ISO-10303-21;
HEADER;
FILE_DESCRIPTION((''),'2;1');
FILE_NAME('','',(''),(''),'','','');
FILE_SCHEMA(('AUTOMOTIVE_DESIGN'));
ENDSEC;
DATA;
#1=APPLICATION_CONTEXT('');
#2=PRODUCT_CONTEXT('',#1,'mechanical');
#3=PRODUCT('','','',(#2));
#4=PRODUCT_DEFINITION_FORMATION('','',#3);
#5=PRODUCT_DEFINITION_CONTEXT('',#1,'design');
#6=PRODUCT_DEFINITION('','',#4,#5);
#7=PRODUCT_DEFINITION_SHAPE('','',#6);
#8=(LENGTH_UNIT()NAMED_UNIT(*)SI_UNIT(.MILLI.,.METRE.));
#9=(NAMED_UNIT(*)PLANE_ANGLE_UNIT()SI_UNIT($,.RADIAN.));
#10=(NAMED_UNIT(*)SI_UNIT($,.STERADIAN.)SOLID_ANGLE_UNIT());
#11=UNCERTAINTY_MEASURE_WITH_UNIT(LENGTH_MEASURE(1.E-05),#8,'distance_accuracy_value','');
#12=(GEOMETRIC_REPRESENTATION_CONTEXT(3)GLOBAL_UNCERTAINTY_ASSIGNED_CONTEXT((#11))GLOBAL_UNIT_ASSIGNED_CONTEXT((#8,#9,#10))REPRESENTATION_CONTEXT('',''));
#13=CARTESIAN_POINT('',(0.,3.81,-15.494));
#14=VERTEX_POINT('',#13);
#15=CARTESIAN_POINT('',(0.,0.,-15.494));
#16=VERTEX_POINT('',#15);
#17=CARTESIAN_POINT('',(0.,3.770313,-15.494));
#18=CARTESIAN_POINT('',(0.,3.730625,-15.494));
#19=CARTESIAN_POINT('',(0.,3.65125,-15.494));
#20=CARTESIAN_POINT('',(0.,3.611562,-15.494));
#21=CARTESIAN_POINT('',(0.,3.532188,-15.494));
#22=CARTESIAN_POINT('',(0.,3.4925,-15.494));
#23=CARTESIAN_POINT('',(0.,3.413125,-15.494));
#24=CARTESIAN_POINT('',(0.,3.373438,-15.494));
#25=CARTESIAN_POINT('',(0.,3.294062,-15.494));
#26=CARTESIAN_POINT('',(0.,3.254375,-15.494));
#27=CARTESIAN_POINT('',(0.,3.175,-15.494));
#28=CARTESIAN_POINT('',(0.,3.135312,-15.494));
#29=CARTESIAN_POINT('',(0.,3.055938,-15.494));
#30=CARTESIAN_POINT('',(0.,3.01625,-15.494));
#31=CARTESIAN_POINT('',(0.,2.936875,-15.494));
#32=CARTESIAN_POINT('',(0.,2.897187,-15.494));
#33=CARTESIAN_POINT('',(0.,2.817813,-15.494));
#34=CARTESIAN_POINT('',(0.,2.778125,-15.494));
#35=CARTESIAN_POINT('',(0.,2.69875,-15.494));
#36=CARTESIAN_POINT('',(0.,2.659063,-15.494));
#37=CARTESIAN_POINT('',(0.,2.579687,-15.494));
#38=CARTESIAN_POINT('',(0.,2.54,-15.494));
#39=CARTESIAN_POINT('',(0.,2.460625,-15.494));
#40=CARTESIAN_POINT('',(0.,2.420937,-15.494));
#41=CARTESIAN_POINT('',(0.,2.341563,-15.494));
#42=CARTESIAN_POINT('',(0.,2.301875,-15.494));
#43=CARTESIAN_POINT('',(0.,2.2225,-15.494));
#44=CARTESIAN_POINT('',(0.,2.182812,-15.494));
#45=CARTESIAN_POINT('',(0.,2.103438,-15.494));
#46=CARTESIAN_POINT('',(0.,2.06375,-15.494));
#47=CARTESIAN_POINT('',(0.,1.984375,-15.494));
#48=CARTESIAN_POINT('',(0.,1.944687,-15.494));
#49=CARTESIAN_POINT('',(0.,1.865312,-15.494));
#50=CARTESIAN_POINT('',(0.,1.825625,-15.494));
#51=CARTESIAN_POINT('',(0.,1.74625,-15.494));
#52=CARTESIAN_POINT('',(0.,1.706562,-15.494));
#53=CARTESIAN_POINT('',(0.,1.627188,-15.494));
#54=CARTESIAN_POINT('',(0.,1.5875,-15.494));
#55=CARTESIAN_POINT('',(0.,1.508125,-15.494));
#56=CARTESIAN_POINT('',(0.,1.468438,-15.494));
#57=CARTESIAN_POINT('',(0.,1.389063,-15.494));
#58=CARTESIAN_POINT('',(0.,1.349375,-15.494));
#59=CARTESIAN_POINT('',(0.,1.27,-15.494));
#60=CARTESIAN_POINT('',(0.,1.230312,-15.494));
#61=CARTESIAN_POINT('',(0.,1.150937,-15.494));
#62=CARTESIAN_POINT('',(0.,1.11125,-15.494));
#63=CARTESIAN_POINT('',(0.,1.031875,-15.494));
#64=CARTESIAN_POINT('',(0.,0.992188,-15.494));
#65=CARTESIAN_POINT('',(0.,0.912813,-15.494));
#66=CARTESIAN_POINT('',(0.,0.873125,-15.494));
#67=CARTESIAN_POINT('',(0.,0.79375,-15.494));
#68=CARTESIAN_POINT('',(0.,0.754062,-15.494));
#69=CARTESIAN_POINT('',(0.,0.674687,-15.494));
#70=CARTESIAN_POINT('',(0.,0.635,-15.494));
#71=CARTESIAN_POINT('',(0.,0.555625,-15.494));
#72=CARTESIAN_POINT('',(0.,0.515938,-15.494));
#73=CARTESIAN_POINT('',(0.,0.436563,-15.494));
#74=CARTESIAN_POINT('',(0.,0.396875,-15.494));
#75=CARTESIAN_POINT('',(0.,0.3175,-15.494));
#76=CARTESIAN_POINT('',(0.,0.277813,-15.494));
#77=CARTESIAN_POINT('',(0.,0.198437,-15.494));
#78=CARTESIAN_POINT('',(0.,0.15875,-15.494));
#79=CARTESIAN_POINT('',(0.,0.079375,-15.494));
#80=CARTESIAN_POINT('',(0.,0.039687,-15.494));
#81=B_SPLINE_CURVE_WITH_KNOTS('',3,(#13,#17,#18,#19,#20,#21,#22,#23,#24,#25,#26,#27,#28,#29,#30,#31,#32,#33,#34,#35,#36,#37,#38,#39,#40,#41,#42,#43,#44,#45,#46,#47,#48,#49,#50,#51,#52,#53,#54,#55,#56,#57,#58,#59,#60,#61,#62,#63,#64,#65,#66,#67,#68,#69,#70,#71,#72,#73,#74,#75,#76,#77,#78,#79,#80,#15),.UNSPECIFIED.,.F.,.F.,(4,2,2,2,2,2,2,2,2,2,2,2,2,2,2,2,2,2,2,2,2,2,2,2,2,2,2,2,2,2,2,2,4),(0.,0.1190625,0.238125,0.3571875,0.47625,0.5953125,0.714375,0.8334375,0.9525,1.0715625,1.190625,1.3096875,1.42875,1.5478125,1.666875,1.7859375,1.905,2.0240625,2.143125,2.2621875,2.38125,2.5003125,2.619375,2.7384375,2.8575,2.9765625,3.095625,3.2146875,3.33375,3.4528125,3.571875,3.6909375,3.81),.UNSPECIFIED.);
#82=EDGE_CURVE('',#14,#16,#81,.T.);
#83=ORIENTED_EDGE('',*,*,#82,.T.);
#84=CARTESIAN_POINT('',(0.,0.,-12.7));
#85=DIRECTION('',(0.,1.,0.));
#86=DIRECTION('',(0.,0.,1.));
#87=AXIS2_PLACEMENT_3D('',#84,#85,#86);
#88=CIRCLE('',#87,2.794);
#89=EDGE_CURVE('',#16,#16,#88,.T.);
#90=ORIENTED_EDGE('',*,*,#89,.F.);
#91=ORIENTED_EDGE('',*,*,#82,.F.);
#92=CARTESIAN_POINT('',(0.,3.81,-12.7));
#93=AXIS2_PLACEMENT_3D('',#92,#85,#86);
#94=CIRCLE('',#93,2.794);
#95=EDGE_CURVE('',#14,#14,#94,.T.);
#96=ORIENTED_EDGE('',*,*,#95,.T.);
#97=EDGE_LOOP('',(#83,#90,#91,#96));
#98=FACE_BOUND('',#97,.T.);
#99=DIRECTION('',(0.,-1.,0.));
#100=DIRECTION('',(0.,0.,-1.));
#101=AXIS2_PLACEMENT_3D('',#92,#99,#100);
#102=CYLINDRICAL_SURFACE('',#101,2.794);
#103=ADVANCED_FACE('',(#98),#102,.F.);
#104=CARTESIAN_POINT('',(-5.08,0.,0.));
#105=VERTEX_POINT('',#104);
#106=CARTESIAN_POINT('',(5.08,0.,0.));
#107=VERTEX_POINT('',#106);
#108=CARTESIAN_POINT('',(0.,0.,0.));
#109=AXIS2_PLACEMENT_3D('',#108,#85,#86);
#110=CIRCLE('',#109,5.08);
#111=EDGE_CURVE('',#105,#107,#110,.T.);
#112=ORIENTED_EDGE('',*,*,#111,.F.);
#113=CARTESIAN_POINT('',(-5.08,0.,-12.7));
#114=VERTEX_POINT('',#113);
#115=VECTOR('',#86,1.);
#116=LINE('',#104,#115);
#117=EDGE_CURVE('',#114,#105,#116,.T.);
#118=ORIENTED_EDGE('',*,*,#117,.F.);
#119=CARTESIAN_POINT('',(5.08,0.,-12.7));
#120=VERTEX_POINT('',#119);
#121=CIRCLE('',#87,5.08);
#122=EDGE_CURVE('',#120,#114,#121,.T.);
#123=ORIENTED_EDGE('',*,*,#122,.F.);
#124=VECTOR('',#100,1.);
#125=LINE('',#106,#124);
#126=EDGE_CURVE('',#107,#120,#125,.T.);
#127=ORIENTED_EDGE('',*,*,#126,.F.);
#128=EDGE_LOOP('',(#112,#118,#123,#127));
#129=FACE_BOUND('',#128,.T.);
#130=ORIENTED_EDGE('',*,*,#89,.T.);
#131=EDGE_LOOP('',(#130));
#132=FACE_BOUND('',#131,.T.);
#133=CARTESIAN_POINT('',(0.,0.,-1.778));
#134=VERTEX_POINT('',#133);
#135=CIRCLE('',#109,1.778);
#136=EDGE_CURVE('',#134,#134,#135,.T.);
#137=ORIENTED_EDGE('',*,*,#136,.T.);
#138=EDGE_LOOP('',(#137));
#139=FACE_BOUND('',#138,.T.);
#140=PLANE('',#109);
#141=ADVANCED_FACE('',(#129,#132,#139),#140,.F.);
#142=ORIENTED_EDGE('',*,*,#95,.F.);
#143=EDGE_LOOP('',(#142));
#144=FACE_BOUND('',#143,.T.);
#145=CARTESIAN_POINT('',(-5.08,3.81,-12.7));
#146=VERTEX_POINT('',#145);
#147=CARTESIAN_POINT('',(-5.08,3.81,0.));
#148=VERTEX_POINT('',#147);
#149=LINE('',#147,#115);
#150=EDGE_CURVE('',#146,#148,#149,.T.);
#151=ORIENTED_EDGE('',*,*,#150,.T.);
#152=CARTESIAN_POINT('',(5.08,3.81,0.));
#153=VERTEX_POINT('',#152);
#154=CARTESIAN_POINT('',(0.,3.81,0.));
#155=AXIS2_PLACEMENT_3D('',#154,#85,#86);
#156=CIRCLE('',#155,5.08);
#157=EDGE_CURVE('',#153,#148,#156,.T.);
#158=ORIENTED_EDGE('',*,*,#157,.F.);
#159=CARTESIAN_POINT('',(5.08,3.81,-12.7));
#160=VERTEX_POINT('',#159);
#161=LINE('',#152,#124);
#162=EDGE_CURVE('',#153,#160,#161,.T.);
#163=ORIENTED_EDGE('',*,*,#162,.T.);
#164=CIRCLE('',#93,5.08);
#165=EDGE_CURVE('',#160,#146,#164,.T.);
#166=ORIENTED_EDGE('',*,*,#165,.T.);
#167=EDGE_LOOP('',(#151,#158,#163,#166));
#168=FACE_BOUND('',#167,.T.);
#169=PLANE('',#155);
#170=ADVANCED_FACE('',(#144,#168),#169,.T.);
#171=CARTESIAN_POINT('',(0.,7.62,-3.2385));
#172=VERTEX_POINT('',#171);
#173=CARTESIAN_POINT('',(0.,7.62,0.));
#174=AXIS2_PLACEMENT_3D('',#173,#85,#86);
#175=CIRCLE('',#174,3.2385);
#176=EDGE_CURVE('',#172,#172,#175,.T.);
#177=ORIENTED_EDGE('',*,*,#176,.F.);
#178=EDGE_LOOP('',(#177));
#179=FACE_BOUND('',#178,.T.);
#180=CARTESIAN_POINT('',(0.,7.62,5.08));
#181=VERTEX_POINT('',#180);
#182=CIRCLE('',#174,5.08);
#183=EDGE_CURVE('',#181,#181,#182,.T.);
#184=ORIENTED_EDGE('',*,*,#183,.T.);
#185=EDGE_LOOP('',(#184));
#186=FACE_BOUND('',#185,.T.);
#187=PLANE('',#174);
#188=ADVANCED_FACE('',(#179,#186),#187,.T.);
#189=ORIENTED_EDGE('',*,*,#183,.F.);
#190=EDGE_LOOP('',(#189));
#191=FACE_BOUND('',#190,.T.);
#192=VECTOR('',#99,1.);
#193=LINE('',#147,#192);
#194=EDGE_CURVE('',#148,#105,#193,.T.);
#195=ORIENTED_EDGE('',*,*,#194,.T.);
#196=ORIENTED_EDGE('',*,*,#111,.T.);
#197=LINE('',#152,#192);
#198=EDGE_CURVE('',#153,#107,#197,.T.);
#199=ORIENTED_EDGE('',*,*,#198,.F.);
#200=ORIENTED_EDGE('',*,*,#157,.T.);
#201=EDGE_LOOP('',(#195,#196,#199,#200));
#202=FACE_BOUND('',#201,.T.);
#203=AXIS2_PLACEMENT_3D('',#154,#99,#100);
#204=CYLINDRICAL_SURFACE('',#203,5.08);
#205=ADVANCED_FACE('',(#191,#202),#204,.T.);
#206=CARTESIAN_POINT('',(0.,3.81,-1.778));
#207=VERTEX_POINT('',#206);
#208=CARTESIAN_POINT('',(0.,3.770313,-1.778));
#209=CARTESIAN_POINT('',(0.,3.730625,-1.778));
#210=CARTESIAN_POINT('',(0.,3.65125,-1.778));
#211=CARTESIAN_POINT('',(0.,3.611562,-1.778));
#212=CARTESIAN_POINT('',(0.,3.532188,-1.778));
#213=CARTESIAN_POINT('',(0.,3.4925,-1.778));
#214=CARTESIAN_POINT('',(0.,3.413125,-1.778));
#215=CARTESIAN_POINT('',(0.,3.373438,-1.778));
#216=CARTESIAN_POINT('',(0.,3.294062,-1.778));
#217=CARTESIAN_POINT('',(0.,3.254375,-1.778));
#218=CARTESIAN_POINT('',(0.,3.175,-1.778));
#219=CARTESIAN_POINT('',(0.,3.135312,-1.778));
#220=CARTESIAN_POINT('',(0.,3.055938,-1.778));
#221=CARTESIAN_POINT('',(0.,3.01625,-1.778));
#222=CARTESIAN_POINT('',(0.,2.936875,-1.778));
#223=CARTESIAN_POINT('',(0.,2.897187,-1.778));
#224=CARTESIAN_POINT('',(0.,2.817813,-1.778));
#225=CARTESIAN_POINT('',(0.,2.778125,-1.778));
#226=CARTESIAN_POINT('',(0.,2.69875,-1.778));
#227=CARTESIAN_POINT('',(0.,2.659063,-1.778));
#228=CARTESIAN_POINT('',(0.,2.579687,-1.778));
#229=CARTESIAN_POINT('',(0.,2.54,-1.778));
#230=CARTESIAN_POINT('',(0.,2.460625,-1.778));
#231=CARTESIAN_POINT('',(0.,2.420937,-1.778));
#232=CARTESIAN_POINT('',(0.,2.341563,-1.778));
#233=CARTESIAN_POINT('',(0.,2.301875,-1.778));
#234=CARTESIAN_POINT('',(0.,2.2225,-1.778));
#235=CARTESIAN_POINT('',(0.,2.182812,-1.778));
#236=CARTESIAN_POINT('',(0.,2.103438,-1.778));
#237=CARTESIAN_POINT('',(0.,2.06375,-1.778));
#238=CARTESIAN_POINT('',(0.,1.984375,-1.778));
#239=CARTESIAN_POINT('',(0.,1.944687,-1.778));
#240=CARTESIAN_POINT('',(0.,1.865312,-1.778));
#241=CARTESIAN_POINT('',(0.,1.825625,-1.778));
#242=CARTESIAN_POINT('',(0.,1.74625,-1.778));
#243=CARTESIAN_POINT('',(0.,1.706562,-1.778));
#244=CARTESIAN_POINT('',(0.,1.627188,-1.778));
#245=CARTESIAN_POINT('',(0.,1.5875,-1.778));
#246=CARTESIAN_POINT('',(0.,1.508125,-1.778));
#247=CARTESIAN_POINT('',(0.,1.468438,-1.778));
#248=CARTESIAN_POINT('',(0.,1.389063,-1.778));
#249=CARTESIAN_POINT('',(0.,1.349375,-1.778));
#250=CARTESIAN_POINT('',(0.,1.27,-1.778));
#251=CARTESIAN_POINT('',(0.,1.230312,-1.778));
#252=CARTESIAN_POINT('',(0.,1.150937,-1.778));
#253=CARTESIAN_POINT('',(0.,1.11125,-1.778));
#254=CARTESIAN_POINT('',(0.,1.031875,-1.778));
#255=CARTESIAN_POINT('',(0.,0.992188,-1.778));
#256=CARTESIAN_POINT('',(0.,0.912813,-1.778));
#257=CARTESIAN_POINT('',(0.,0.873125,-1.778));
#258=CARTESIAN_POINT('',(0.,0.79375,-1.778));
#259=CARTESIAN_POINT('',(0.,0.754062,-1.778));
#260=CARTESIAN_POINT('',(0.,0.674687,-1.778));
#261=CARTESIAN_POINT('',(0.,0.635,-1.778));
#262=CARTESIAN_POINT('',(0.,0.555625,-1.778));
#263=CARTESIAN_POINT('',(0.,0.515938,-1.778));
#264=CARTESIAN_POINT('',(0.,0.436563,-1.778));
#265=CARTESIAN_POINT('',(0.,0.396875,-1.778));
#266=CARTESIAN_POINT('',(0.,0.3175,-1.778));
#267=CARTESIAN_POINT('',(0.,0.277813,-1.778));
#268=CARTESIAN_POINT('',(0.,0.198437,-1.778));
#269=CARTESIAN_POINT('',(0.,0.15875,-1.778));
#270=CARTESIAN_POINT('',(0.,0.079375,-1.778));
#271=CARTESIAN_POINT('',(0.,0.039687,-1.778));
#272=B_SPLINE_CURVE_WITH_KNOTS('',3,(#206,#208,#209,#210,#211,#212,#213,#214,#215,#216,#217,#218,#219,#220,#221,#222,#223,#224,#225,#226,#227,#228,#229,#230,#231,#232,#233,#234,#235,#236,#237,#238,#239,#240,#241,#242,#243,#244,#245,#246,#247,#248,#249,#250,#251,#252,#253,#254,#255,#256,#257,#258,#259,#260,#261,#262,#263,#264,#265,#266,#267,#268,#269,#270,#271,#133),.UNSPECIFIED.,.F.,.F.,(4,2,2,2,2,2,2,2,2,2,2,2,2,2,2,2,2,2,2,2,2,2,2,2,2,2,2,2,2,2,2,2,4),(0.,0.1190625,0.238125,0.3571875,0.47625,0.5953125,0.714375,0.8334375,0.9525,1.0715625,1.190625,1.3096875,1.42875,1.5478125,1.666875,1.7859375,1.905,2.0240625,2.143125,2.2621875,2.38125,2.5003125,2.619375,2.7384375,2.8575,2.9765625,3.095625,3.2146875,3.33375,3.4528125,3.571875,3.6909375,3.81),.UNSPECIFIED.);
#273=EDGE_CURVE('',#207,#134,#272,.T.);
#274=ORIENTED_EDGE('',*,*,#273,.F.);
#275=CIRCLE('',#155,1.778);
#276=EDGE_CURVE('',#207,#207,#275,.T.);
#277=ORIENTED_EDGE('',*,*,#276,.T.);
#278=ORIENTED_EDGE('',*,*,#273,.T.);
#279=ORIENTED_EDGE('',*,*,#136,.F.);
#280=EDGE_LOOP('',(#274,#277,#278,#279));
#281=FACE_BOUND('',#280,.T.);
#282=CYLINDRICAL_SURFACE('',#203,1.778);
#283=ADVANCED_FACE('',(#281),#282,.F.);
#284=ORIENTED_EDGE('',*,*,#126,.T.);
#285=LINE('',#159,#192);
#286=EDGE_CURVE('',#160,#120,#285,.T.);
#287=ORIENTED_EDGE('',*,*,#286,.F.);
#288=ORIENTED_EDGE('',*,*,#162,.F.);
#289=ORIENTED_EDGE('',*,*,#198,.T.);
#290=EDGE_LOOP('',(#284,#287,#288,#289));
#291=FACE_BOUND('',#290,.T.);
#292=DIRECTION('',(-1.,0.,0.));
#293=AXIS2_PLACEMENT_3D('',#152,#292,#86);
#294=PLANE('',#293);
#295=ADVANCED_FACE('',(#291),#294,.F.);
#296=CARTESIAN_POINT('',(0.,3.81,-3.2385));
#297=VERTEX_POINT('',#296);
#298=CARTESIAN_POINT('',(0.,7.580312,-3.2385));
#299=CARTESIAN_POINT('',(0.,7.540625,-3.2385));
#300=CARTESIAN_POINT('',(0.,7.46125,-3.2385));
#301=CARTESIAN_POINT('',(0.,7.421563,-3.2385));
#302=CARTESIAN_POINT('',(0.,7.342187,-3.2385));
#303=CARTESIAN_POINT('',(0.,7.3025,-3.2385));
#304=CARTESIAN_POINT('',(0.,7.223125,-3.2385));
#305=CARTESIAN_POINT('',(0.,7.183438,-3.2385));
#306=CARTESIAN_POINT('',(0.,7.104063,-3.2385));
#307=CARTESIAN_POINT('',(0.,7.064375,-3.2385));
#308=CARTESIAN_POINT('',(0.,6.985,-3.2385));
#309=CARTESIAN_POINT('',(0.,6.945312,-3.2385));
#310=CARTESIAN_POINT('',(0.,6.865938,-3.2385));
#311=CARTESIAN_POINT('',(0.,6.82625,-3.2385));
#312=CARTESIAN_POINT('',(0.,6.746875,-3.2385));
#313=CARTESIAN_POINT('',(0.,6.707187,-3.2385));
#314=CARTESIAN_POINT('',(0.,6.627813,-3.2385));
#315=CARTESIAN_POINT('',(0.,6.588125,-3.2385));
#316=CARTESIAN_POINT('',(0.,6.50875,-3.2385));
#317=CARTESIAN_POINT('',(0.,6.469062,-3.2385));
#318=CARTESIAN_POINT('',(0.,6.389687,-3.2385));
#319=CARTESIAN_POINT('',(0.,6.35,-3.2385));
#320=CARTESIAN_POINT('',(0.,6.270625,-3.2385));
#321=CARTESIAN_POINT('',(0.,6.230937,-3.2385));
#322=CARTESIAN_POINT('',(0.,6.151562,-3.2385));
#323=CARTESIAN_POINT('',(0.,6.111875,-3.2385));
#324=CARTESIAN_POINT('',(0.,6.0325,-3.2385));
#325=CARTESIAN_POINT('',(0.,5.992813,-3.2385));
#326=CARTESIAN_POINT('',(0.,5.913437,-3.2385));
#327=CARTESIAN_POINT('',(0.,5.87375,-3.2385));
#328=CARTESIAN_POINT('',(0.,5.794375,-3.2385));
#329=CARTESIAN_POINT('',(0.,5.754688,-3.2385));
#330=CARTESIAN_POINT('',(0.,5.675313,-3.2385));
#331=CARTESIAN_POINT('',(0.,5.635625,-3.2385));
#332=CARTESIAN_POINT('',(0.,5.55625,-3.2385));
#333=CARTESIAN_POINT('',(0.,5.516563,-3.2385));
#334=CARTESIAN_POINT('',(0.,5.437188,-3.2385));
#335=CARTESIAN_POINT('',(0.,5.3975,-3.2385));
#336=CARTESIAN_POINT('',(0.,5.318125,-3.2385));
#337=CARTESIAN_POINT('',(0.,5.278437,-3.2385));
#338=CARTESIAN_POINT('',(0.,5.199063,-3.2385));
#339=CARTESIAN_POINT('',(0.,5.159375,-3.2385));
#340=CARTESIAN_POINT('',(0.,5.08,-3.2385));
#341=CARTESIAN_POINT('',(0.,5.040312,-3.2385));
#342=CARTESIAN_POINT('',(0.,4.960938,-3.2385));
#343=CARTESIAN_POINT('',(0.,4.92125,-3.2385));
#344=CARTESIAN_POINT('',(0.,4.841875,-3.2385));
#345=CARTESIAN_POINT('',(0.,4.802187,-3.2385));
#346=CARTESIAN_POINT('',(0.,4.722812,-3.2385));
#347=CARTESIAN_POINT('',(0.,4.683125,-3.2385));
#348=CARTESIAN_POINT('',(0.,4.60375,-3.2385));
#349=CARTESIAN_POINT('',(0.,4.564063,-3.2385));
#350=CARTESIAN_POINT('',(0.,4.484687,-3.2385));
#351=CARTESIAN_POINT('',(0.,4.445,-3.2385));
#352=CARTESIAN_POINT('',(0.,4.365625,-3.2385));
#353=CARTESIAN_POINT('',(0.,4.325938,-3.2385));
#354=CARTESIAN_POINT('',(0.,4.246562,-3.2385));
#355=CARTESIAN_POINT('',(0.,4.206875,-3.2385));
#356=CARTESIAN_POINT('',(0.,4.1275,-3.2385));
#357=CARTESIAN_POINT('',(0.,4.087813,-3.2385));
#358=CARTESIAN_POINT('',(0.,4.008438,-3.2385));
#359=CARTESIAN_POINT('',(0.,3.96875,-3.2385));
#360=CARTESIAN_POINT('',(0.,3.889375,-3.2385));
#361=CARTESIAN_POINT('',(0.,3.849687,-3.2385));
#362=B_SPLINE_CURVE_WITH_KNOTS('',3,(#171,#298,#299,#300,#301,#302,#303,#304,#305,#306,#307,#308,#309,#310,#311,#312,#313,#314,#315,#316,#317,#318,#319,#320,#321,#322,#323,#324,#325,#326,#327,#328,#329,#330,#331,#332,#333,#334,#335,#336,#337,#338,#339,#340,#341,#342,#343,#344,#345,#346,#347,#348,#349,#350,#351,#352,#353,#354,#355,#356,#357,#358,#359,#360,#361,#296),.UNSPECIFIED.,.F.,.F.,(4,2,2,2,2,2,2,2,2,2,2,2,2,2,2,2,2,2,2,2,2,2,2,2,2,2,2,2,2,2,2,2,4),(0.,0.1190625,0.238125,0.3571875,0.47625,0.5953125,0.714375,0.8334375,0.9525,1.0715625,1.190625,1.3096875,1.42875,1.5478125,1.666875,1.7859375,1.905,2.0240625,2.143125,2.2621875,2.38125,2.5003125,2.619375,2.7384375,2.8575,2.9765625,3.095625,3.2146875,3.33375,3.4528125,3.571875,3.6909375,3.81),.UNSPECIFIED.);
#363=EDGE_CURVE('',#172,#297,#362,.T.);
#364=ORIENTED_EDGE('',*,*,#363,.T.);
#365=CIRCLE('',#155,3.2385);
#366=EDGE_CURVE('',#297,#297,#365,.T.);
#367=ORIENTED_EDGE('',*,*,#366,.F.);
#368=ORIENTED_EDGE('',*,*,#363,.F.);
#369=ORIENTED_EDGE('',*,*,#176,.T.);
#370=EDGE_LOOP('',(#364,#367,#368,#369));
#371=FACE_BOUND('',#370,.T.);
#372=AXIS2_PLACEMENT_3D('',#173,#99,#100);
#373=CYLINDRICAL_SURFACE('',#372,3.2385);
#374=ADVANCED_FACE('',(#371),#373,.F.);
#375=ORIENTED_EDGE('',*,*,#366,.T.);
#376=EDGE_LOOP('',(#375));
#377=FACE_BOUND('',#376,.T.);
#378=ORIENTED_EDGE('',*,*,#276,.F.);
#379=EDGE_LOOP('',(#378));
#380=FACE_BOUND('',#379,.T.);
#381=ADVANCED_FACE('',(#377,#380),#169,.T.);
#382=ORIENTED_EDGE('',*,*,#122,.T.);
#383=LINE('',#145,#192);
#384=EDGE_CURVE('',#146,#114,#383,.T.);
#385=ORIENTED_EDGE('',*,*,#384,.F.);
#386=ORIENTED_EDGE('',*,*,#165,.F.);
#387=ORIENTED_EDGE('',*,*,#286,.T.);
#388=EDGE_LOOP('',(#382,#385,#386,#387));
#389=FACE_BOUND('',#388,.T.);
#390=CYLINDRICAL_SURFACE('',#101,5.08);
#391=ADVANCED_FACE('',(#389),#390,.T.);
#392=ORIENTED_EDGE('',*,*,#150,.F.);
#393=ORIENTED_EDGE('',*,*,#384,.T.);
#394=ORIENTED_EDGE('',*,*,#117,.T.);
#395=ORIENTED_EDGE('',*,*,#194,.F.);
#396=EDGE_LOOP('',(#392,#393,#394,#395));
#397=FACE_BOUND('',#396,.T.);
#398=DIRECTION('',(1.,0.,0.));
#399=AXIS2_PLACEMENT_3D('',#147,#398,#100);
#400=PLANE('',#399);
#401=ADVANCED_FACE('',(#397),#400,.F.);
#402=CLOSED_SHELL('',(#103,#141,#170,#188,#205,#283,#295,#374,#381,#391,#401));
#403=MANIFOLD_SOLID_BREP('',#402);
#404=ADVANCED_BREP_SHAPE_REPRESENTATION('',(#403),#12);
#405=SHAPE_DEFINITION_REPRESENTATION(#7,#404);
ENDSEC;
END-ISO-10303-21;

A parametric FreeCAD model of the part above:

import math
import FreeCAD as App
import Part
import Sketcher

V = App.Vector
Q = App.Units.Quantity

doc = App.newDocument("Part")
body = doc.addObject("PartDesign::Body", "Body")

# Sketch on XZ plane
sketch1 = doc.addObject("Sketcher::SketchObject", "Sketch")
body.addObject(sketch1)
sketch1.AttachmentSupport = (doc.XZ_Plane, [""])
sketch1.MapMode = "FlatFace"
sketch1.addGeometry([
    Part.LineSegment(V(-5.1, -12.7, 0), V(-5.1, 0, 0)),  # 0
    Part.ArcOfCircle(Part.Circle(V(0, 0, 0), V(0, 0, 1), 5.1), math.radians(0), math.radians(180)),  # 1
    Part.LineSegment(V(5.1, 0, 0), V(5.1, -12.7, 0)),  # 2
    Part.ArcOfCircle(Part.Circle(V(0, -12.7, 0), V(0, 0, 1), 5.1), math.radians(180), math.radians(360)),  # 3
    Part.Circle(V(0, 0, 0), V(0, 0, 1), 1.8),  # 4
    Part.Circle(V(0, -12.7, 0), V(0, 0, 1), 2.8),  # 5
], False)
sketch1.addConstraint([
    Sketcher.Constraint("Tangent", 0, 2, 1, 2),
    Sketcher.Constraint("Tangent", 1, 1, 2, 1),
    Sketcher.Constraint("Tangent", 2, 2, 3, 2),
    Sketcher.Constraint("Tangent", 3, 1, 0, 1),
    Sketcher.Constraint("Vertical", 0),
    Sketcher.Constraint("Vertical", 2),
    Sketcher.Constraint("Coincident", 1, 3, -1, 1),
    Sketcher.Constraint("Coincident", 4, 3, -1, 1),
    Sketcher.Constraint("Coincident", 5, 3, 3, 3),
    Sketcher.Constraint("Radius", 1, Q("0.2 in")),
    Sketcher.Constraint("Diameter", 4, Q("0.14 in")),
    Sketcher.Constraint("Diameter", 5, Q("0.22 in")),
    Sketcher.Constraint("DistanceY", 0, 1, 0, 2, Q("0.5 in")),
])
pad1 = doc.addObject("PartDesign::Pad", "Pad")
body.addObject(pad1)
pad1.Profile = sketch1
pad1.Length = Q("0.15 in")
pad1.Reversed = True

# Sketch on XZ plane
sketch2 = doc.addObject("Sketcher::SketchObject", "Sketch001")
body.addObject(sketch2)
sketch2.AttachmentSupport = (doc.XZ_Plane, [""])
sketch2.MapMode = "FlatFace"
sketch2.AttachmentOffset = App.Placement(V(0, 0, -0.15 * 25.4), App.Rotation())
sketch2.addGeometry([
    Part.Circle(V(0, 0, 0), V(0, 0, 1), 5.1),
    Part.Circle(V(0, 0, 0), V(0, 0, 1), 3.2),
], False)
sketch2.addConstraint([
    Sketcher.Constraint("Coincident", 0, 3, -1, 1),
    Sketcher.Constraint("Coincident", 1, 3, -1, 1),
    Sketcher.Constraint("Diameter", 0, Q("0.4 in")),
    Sketcher.Constraint("Diameter", 1, Q("0.255 in")),
])
pad2 = doc.addObject("PartDesign::Pad", "Pad001")
body.addObject(pad2)
pad2.Profile = sketch2
pad2.Length = Q("0.15 in")
pad2.Reversed = True

doc.recompute()
